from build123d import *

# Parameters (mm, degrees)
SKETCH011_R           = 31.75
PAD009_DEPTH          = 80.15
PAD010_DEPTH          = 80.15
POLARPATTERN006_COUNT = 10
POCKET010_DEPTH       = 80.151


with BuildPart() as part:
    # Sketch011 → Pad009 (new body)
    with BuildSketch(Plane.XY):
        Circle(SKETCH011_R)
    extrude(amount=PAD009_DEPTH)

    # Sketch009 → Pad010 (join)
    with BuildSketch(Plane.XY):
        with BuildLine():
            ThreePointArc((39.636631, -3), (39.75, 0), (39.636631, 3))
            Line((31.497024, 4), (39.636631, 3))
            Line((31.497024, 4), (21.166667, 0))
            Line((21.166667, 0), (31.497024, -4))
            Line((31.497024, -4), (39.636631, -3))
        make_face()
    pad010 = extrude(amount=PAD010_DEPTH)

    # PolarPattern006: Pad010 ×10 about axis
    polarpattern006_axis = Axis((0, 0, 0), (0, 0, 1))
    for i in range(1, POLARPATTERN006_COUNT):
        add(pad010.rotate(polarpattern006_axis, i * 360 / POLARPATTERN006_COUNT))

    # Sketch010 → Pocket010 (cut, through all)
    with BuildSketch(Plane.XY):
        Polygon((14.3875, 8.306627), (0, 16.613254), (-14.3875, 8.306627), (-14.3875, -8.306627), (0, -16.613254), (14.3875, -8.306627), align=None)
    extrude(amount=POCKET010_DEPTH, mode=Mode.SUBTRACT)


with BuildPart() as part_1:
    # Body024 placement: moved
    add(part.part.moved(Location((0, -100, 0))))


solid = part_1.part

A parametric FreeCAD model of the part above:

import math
import FreeCAD as App
import Part
import Sketcher

V = App.Vector
Q = App.Units.Quantity


def add_polygon(sketch, points):
    """Adds a closed chain of lines whose ends are joined by coincident constraints."""
    first, n = sketch.GeometryCount, len(points)
    for a, b in zip(points, points[1:] + points[:1]):
        sketch.addGeometry(Part.LineSegment(App.Vector(*a, 0), App.Vector(*b, 0)), False)
    for i in range(n):
        sketch.addConstraint(Sketcher.Constraint("Coincident", first + i, 2, first + (i + 1) % n, 1))

doc = App.newDocument("Part")
body = doc.addObject("PartDesign::Body", "Body")

sketch1 = doc.addObject("Sketcher::SketchObject", "Sketch")
body.addObject(sketch1)
sketch1.AttachmentSupport = (doc.XY_Plane, [""])
sketch1.MapMode = "FlatFace"
sketch1.addGeometry(Part.Circle(V(0, 0, 0), V(0, 0, 1), 31.75), False)
sketch1.addConstraint(Sketcher.Constraint("Coincident", 0, 3, -1, 1))
sketch1.addConstraint(Sketcher.Constraint("Diameter", 0, Q("2.5 in")))
pad1 = doc.addObject("PartDesign::Pad", "Pad")
body.addObject(pad1)
pad1.Profile = sketch1
pad1.Length = 80.15

sketch2 = doc.addObject("Sketcher::SketchObject", "Sketch001")
body.addObject(sketch2)
sketch2.AttachmentSupport = (doc.XY_Plane, [""])
sketch2.MapMode = "FlatFace"
sketch2.addGeometry(Part.ArcOfCircle(Part.Circle(V(-0.000075, 0, 0), V(0, 0, 1), 39.750075), math.radians(-4.328317), math.radians(4.328317)), False)
sketch2.addGeometry(Part.LineSegment(V(39.636631, 3, 0), V(31.497024, 4, 0)), False)
sketch2.addGeometry(Part.LineSegment(V(31.497024, 4, 0), V(21.166667, 0, 0)), False)
sketch2.addGeometry(Part.LineSegment(V(21.166667, 0, 0), V(31.497024, -4, 0)), False)
sketch2.addGeometry(Part.LineSegment(V(31.497024, -4, 0), V(39.636631, -3, 0)), False)
sketch2.addConstraint(Sketcher.Constraint("Coincident", 0, 2, 1, 1))
sketch2.addConstraint(Sketcher.Constraint("Coincident", 1, 2, 2, 1))
sketch2.addConstraint(Sketcher.Constraint("Coincident", 2, 2, 3, 1))
sketch2.addConstraint(Sketcher.Constraint("Coincident", 3, 2, 4, 1))
sketch2.addConstraint(Sketcher.Constraint("Coincident", 4, 2, 0, 1))
sketch2.addConstraint(Sketcher.Constraint("Symmetric", 1, 2, 3, 2, -1))
sketch2.addConstraint(Sketcher.Constraint("Symmetric", 0, 2, 4, 2, -1))
sketch2.addConstraint(Sketcher.Constraint("PointOnObject", 2, 2, -1))
sketch2.addConstraint(Sketcher.Constraint("Radius", 0, 39.750075))
sketch2.addConstraint(Sketcher.Constraint("DistanceY", -1, 1, 0, 2, 3.0))
sketch2.addConstraint(Sketcher.Constraint("DistanceY", -1, 1, 1, 2, 4.0))
sketch2.addConstraint(Sketcher.Constraint("DistanceX", 0, 3, 1, 2, 31.497099))
sketch2.addConstraint(Sketcher.Constraint("DistanceX", -1, 1, 0, 2, 39.636631))
sketch2.addConstraint(Sketcher.Constraint("Distance", 2, 11.077738))
pad2 = doc.addObject("PartDesign::Pad", "Pad001")
body.addObject(pad2)
pad2.Profile = sketch2
pad2.Length = 80.15
doc.recompute()

polarpattern = doc.addObject("PartDesign::PolarPattern", "PolarPattern")
body.addObject(polarpattern)
polarpattern.Originals = [pad2]
polarpattern.Axis = (doc.Z_Axis, [""])
polarpattern.Angle = 360
polarpattern.Occurrences = 10
body.Tip = polarpattern

sketch3 = doc.addObject("Sketcher::SketchObject", "Sketch002")
body.addObject(sketch3)
sketch3.AttachmentSupport = (doc.XY_Plane, [""])
sketch3.MapMode = "FlatFace"
add_polygon(sketch3, [(14.3875, 8.306627), (0, 16.613254), (-14.3875, 8.306627), (-14.3875, -8.306627), (0, -16.613254), (14.3875, -8.306627)])
sketch3.addConstraint(Sketcher.Constraint("Vertical", 2))
sketch3.addConstraint(Sketcher.Constraint("Vertical", 5))
sketch3.addConstraint(Sketcher.Constraint("Symmetric", 0, 2, 3, 2, -1, 1))
sketch3.addConstraint(Sketcher.Constraint("Symmetric", 1, 2, 4, 2, -1, 1))
sketch3.addConstraint(Sketcher.Constraint("PointOnObject", 0, 2, -2))
sketch3.addConstraint(Sketcher.Constraint("Parallel", 0, 3))
sketch3.addConstraint(Sketcher.Constraint("Horizontal", 2, 2, 4, 2))
sketch3.addConstraint(Sketcher.Constraint("Angle", 0, Q("150 deg")))
sketch3.addConstraint(Sketcher.Constraint("DistanceX", 1, 2, -1, 1, 14.3875))
sketch3.addConstraint(Sketcher.Constraint("DistanceY", 2, 2, 2, 1, 16.613254))
pocket1 = doc.addObject("PartDesign::Pocket", "Pocket")
body.addObject(pocket1)
pocket1.Profile = sketch3
pocket1.Type = "ThroughAll"
pocket1.Reversed = True
body2 = doc.addObject("PartDesign::Body", "Body001")
doc.recompute()

body.Placement = App.Placement(V(0, -100, 0), App.Rotation(V(0, 0, 1), 0))
boolean = doc.addObject("PartDesign::Boolean", "Boolean")
body2.addObject(boolean)
boolean.Type = "Fuse"
boolean.addObjects([body])

doc.recompute()
